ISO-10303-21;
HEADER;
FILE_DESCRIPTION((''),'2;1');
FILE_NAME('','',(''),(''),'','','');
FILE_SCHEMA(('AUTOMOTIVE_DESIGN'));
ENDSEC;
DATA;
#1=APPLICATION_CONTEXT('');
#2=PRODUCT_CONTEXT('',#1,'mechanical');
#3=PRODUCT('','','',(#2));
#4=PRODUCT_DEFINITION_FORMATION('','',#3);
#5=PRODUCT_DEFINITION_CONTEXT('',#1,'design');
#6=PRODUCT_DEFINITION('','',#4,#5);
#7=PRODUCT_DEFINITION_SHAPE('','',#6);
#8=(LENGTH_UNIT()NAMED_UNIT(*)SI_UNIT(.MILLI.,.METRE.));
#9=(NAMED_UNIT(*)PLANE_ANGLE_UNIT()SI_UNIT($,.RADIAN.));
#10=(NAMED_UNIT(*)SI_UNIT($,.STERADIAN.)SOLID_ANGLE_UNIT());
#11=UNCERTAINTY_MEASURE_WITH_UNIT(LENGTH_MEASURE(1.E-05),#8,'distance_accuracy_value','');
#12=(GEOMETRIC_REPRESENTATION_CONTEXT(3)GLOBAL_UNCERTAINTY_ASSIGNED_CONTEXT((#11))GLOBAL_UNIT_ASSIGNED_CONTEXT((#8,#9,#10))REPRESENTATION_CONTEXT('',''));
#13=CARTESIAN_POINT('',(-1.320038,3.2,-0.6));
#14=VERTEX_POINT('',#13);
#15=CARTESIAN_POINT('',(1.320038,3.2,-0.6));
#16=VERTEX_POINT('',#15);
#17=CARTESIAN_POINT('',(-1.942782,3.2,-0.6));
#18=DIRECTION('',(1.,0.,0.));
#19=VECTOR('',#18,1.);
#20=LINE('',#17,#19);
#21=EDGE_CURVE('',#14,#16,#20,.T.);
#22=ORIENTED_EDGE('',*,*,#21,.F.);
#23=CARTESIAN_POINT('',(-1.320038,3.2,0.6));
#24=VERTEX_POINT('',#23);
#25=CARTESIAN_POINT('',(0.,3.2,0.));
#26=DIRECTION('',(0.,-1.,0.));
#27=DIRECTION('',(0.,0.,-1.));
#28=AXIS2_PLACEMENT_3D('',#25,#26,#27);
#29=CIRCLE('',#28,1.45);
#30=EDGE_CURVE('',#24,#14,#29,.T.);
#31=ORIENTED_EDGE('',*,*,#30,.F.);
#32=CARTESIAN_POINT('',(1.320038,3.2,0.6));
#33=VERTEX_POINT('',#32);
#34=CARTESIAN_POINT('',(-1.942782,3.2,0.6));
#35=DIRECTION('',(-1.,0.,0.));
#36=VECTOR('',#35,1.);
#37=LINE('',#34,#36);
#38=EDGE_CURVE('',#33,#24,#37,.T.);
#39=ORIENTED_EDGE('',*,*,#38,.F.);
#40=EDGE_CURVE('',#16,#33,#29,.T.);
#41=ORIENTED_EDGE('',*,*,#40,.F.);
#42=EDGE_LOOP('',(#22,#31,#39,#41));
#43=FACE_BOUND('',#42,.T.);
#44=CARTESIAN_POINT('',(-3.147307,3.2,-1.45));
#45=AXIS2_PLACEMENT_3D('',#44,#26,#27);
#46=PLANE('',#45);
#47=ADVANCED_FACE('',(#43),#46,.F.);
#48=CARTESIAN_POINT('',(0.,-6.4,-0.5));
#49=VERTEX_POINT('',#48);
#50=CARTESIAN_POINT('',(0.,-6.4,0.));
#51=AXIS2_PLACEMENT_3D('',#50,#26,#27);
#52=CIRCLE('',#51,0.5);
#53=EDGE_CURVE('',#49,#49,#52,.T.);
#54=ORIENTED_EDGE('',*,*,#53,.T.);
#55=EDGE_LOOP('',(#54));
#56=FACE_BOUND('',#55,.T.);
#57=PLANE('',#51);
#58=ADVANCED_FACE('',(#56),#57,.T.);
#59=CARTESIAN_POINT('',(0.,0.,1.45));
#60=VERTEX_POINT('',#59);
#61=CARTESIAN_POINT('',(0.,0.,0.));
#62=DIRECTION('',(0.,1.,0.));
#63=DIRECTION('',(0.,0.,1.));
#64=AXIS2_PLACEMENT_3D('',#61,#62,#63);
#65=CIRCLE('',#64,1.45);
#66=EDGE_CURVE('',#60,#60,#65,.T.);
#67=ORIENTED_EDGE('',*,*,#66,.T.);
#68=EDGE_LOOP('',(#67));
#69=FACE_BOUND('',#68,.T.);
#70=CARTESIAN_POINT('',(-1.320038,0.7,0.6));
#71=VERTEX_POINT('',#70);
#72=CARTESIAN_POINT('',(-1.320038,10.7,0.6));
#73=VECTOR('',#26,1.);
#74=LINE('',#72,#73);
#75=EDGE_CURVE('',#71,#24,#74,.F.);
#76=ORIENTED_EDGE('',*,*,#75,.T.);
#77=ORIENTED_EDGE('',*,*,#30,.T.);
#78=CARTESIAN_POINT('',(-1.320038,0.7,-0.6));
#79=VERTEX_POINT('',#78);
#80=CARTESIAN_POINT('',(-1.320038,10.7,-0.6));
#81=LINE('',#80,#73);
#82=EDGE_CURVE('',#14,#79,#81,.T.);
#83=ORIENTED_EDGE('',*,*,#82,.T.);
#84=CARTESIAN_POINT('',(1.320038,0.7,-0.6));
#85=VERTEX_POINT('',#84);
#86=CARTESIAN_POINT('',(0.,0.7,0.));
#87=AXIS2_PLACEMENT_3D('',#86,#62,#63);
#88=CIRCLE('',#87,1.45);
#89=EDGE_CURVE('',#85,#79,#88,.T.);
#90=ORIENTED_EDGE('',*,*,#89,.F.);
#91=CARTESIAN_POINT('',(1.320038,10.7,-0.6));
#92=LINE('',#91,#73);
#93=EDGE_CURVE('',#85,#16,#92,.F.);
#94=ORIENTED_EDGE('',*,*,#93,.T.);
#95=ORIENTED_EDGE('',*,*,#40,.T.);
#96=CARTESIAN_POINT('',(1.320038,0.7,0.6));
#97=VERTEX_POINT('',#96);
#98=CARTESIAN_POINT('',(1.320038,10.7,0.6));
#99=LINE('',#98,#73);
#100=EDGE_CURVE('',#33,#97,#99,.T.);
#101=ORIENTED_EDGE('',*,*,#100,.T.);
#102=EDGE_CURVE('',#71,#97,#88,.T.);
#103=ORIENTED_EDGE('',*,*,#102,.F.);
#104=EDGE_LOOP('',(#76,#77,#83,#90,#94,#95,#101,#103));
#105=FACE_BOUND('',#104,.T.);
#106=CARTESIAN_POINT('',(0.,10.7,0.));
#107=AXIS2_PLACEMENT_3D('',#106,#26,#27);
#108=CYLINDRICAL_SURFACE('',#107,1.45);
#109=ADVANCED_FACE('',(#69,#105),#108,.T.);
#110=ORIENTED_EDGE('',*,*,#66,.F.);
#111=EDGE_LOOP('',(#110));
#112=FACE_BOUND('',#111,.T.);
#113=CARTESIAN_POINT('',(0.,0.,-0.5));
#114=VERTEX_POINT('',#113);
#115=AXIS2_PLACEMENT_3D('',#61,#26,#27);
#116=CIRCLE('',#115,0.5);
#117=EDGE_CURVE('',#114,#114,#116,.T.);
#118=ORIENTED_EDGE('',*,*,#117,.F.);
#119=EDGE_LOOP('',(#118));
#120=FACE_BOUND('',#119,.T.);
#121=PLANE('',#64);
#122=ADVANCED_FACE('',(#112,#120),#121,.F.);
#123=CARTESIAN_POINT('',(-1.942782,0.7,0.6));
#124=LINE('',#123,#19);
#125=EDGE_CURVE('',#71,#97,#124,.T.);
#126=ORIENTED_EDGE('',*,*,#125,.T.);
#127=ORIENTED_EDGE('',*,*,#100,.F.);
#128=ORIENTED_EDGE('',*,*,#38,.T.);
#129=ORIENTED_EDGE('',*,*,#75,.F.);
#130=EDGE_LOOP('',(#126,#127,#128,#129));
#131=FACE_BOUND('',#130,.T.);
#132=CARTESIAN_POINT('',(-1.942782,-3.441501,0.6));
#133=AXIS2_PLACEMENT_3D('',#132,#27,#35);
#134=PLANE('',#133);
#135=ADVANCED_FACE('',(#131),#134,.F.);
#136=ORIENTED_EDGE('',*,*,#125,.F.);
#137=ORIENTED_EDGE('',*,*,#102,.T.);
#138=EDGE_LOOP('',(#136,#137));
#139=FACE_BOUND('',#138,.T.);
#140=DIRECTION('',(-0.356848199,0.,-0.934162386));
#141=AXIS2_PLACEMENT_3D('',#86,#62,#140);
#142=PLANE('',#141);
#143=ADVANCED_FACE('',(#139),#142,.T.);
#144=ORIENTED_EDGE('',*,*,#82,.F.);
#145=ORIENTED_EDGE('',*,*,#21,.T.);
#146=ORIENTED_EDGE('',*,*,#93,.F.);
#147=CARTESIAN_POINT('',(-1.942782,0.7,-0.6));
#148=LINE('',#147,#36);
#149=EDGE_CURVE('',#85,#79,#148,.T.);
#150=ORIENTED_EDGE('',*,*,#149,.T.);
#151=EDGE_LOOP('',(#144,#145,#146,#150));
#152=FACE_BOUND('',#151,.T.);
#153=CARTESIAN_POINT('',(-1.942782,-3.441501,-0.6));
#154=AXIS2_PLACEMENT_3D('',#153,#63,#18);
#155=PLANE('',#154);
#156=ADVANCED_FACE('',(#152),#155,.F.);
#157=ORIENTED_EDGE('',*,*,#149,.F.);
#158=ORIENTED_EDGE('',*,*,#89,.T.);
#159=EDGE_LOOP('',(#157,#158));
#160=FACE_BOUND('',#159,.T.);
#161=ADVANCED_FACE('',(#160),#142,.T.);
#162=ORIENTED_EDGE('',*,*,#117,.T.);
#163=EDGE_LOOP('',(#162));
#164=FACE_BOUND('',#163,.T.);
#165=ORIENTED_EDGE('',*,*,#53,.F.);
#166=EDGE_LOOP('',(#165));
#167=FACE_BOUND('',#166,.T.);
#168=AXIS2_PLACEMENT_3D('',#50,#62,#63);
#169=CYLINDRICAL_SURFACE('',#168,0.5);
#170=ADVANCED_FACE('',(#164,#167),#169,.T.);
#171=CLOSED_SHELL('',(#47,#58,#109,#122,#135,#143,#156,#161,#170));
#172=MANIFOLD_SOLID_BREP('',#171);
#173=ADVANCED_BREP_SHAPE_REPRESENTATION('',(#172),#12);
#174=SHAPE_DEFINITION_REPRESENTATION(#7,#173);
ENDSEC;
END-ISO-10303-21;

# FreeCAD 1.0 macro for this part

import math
import FreeCAD as App
import Part
import Sketcher

V = App.Vector


def add_polygon(sketch, points):
    """Adds a closed chain of lines whose ends are joined by coincident constraints."""
    first, n = sketch.GeometryCount, len(points)
    for a, b in zip(points, points[1:] + points[:1]):
        sketch.addGeometry(Part.LineSegment(App.Vector(*a, 0), App.Vector(*b, 0)), False)
    for i in range(n):
        sketch.addConstraint(Sketcher.Constraint("Coincident", first + i, 2, first + (i + 1) % n, 1))

doc = App.newDocument("Part")
body = doc.addObject("PartDesign::Body", "Body")

sketch1 = body.newObject("Sketcher::SketchObject", "Sketch")
sketch1.AttachmentSupport = (doc.getObject("XZ_Plane"), [""])
sketch1.MapMode = "FlatFace"
sketch1.addGeometry(Part.Circle(V(0, 0, 0), V(0, 0, 1), 1.45), False)
sketch1.addConstraint(Sketcher.Constraint("Coincident", 0, 3, -1, 1))
sketch1.addConstraint(Sketcher.Constraint("Diameter", 0, 2.9))
pad1 = body.newObject("PartDesign::Pad", "Pad")
pad1.Profile = sketch1
pad1.Length = 10.7
pad1.Reversed = True

sketch2 = body.newObject("Sketcher::SketchObject", "Sketch001")
sketch2.AttachmentSupport = (doc.getObject("XZ_Plane"), [""])
sketch2.MapMode = "FlatFace"
sketch2.AttachmentOffset = App.Placement(V(0, 0, -4.7), App.Rotation())
sketch2.addGeometry(Part.LineSegment(V(1, 1.05, 0), V(-1, 1.05, 0)), False)
sketch2.addGeometry(Part.ArcOfCircle(Part.Circle(V(0, 0, 0), V(0, 0, 1), 1.45), math.radians(46.397181), math.radians(133.602819)), False)
sketch2.addConstraint(Sketcher.Constraint("Coincident", 0, 1, 1, 1))
sketch2.addConstraint(Sketcher.Constraint("Coincident", 1, 2, 0, 2))
sketch2.addConstraint(Sketcher.Constraint("Horizontal", 0))
sketch2.addConstraint(Sketcher.Constraint("Coincident", 1, 3, -1, 1))
sketch2.addConstraint(Sketcher.Constraint("DistanceX", 0, 2, 0, 1, 2.0))
sketch2.addConstraint(Sketcher.Constraint("Radius", 1, 1.45))
pocket1 = body.newObject("PartDesign::Pocket", "Pocket")
pocket1.Profile = sketch2
pocket1.Length = 6

sketch3 = body.newObject("Sketcher::SketchObject", "Sketch002")
sketch3.AttachmentSupport = (doc.getObject("XZ_Plane"), [""])
sketch3.MapMode = "FlatFace"
sketch3.addGeometry(Part.Circle(V(0, 0, 0), V(0, 0, 1), 0.5), False)
sketch3.addConstraint(Sketcher.Constraint("Coincident", 0, 3, -1, 1))
sketch3.addConstraint(Sketcher.Constraint("Diameter", 0, 1.0))
pad2 = body.newObject("PartDesign::Pad", "Pad001")
pad2.Profile = sketch3
pad2.Length = 6.4

sketch4 = body.newObject("Sketcher::SketchObject", "Sketch003")
sketch4.AttachmentSupport = (doc.getObject("XZ_Plane"), [""])
sketch4.MapMode = "FlatFace"
sketch4.AttachmentOffset = App.Placement(V(0, 0, -0.7), App.Rotation())
sketch4.addGeometry(Part.LineSegment(V(-1.942782, -0.6, 0), V(1.942782, -0.6, 0)), False)
sketch4.addGeometry(Part.ArcOfCircle(Part.Circle(V(0, 0, 0), V(0, 0, 1), 2.033323), math.radians(-162.83746), math.radians(-17.16254)), False)
sketch4.addGeometry(Part.LineSegment(V(1.942782, 0.6, 0), V(-1.942782, 0.6, 0)), False)
sketch4.addGeometry(Part.ArcOfCircle(Part.Circle(V(0, 0, 0), V(0, 0, 1), 2.033323), math.radians(17.16254), math.radians(162.83746)), False)
sketch4.addConstraint(Sketcher.Constraint("Coincident", 0, 1, 1, 1))
sketch4.addConstraint(Sketcher.Constraint("Coincident", 1, 2, 0, 2))
sketch4.addConstraint(Sketcher.Constraint("Coincident", 2, 1, 3, 1))
sketch4.addConstraint(Sketcher.Constraint("Coincident", 3, 2, 2, 2))
sketch4.addConstraint(Sketcher.Constraint("Horizontal", 0))
sketch4.addConstraint(Sketcher.Constraint("Horizontal", 2))
sketch4.addConstraint(Sketcher.Constraint("Coincident", 1, 3, -1, 1))
sketch4.addConstraint(Sketcher.Constraint("Coincident", 3, 3, -1, 1))
sketch4.addConstraint(Sketcher.Constraint("Equal", 1, 3))
sketch4.addConstraint(Sketcher.Constraint("Vertical", 1, 2, 2, 1))
sketch4.addConstraint(Sketcher.Constraint("DistanceY", 0, 1, -1, 1, 0.6))
sketch4.addConstraint(Sketcher.Constraint("Radius", 1, 2.033323))
pocket2 = body.newObject("PartDesign::Pocket", "Pocket001")
pocket2.Profile = sketch4
pocket2.Length = 10

sketch5 = body.newObject("Sketcher::SketchObject", "Sketch004")
sketch5.AttachmentSupport = (doc.getObject("XY_Plane"), [""])
sketch5.MapMode = "FlatFace"
sketch5.AttachmentOffset = App.Placement(V(0, 0, 0.6), App.Rotation())
add_polygon(sketch5, [(-3.147307, 12.098467), (-3.147307, 3.2), (3.593568, 3.2), (3.593568, 12.098467)])
sketch5.addConstraint(Sketcher.Constraint("Vertical", 0))
sketch5.addConstraint(Sketcher.Constraint("Horizontal", 1))
sketch5.addConstraint(Sketcher.Constraint("Vertical", 2))
sketch5.addConstraint(Sketcher.Constraint("Horizontal", 3))
sketch5.addConstraint(Sketcher.Constraint("DistanceY", -1, 1, 0, 2, 3.2))
sketch5.addConstraint(Sketcher.Constraint("DistanceX", 1, 1, 1, 2, 6.740875))
sketch5.addConstraint(Sketcher.Constraint("DistanceY", 0, 2, 0, 1, 8.898467))
sketch5.addConstraint(Sketcher.Constraint("DistanceX", -1, 1, 1, 2, 3.593568))
pocket3 = body.newObject("PartDesign::Pocket", "Pocket002")
pocket3.Profile = sketch5
pocket3.Type = "ThroughAll"

doc.recompute()
